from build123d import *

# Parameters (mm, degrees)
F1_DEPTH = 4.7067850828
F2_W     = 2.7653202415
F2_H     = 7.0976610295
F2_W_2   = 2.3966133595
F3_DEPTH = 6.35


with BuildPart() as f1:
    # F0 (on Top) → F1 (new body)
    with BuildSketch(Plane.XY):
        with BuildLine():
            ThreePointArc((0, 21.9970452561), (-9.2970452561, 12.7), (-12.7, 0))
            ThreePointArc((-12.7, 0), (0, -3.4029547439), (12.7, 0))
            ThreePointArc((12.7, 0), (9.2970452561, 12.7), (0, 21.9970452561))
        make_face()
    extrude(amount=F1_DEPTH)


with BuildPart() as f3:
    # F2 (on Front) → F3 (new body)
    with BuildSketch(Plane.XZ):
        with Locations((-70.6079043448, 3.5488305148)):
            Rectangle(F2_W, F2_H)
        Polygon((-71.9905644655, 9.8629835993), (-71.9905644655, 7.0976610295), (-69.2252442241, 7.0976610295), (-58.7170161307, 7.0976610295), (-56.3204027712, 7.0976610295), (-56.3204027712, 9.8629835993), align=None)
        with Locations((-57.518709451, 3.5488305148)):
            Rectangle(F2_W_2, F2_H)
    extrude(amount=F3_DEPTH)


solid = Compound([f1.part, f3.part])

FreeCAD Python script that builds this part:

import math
import FreeCAD as App
import Part
import Sketcher
from FreeCAD import Vector
Q = App.Units.Quantity


def add_polygon(sketch, points):
    """Adds a closed chain of lines whose ends are joined by coincident constraints."""
    first, n = sketch.GeometryCount, len(points)
    for a, b in zip(points, points[1:] + points[:1]):
        sketch.addGeometry(Part.LineSegment(App.Vector(*a, 0), App.Vector(*b, 0)), False)
    for i in range(n):
        sketch.addConstraint(Sketcher.Constraint("Coincident", first + i, 2, first + (i + 1) % n, 1))

doc = App.newDocument("Part")
body = doc.addObject("PartDesign::Body", "Body")

sketch1 = doc.addObject("Sketcher::SketchObject", "Sketch")
body.addObject(sketch1)
sketch1.AttachmentSupport = (doc.XY_Plane, [""])
sketch1.MapMode = "FlatFace"
sketch1.addGeometry([
    Part.ArcOfCircle(Part.Circle(Vector(13, 0, 0), Vector(0, 0, 1), 25), math.radians(120), math.radians(180)),
    Part.ArcOfCircle(Part.Circle(Vector(0, 22, 0), Vector(0, 0, 1), 25), math.radians(-120), math.radians(-60)),
    Part.ArcOfCircle(Part.Circle(Vector(-13, 0, 0), Vector(0, 0, 1), 25), math.radians(0), math.radians(60)),
], False)
sketch1.addConstraint([
    Sketcher.Constraint("Coincident", 0, 2, 1, 1),
    Sketcher.Constraint("Coincident", 1, 2, 2, 1),
    Sketcher.Constraint("Coincident", 2, 2, 0, 1),
    Sketcher.Constraint("Coincident", 0, 2, 2, 3),
    Sketcher.Constraint("Coincident", 1, 2, 0, 3),
    Sketcher.Constraint("Equal", 0, 1),
    Sketcher.Constraint("Symmetric", 0, 3, 2, 3, -1, 1),
    Sketcher.Constraint("PointOnObject", 0, 3, -1),
    Sketcher.Constraint("Radius", 0, Q("1 in")),
])
pad1 = doc.addObject("PartDesign::Pad", "Pad")
body.addObject(pad1)
pad1.Profile = sketch1
pad1.Length = 4.706785
body2 = doc.addObject("PartDesign::Body", "Body001")

sketch2 = doc.addObject("Sketcher::SketchObject", "Sketch001")
body2.addObject(sketch2)
sketch2.AttachmentSupport = (doc.getObject("XZ_Plane001"), [""])
sketch2.MapMode = "FlatFace"
add_polygon(sketch2, [(-72, 7.1), (-72, 0), (-69.2, 0), (-69.2, 7.1), (-58.7, 7.1), (-58.7, 0), (-56.3, 0), (-56.3, 7.1), (-56.3, 9.9), (-72, 9.9)])
sketch2.addConstraint([
    Sketcher.Constraint("Vertical", 0),
    Sketcher.Constraint("Horizontal", 1),
    Sketcher.Constraint("Vertical", 2),
    Sketcher.Constraint("Horizontal", 3),
    Sketcher.Constraint("Vertical", 4),
    Sketcher.Constraint("Horizontal", 5),
    Sketcher.Constraint("Vertical", 6),
    Sketcher.Constraint("Vertical", 7),
    Sketcher.Constraint("Horizontal", 8),
    Sketcher.Constraint("Vertical", 9),
    Sketcher.Constraint("PointOnObject", 0, 2, -1),
    Sketcher.Constraint("PointOnObject", 4, 2, -1),
    Sketcher.Constraint("Horizontal", 3, 2, 6, 2),
    Sketcher.Constraint("Horizontal", 6, 2, 9, 2),
    Sketcher.Constraint("DistanceX", 1, 1, 1, 2, Q("2.76532 mm")),
    Sketcher.Constraint("DistanceX", 3, 1, 3, 2, Q("10.508228 mm")),
    Sketcher.Constraint("DistanceX", 8, 2, 8, 1, Q("15.670162 mm")),
    Sketcher.Constraint("DistanceY", 0, 2, 0, 1, Q("7.097661 mm")),
    Sketcher.Constraint("DistanceY", 7, 1, 7, 2, Q("2.765323 mm")),
    Sketcher.Constraint("DistanceX", 0, 2, -1, 1, Q("71.990564 mm")),
])
pad2 = doc.addObject("PartDesign::Pad", "Pad001")
body2.addObject(pad2)
pad2.Profile = sketch2
pad2.Length = Q("0.25 in")

doc.recompute()
